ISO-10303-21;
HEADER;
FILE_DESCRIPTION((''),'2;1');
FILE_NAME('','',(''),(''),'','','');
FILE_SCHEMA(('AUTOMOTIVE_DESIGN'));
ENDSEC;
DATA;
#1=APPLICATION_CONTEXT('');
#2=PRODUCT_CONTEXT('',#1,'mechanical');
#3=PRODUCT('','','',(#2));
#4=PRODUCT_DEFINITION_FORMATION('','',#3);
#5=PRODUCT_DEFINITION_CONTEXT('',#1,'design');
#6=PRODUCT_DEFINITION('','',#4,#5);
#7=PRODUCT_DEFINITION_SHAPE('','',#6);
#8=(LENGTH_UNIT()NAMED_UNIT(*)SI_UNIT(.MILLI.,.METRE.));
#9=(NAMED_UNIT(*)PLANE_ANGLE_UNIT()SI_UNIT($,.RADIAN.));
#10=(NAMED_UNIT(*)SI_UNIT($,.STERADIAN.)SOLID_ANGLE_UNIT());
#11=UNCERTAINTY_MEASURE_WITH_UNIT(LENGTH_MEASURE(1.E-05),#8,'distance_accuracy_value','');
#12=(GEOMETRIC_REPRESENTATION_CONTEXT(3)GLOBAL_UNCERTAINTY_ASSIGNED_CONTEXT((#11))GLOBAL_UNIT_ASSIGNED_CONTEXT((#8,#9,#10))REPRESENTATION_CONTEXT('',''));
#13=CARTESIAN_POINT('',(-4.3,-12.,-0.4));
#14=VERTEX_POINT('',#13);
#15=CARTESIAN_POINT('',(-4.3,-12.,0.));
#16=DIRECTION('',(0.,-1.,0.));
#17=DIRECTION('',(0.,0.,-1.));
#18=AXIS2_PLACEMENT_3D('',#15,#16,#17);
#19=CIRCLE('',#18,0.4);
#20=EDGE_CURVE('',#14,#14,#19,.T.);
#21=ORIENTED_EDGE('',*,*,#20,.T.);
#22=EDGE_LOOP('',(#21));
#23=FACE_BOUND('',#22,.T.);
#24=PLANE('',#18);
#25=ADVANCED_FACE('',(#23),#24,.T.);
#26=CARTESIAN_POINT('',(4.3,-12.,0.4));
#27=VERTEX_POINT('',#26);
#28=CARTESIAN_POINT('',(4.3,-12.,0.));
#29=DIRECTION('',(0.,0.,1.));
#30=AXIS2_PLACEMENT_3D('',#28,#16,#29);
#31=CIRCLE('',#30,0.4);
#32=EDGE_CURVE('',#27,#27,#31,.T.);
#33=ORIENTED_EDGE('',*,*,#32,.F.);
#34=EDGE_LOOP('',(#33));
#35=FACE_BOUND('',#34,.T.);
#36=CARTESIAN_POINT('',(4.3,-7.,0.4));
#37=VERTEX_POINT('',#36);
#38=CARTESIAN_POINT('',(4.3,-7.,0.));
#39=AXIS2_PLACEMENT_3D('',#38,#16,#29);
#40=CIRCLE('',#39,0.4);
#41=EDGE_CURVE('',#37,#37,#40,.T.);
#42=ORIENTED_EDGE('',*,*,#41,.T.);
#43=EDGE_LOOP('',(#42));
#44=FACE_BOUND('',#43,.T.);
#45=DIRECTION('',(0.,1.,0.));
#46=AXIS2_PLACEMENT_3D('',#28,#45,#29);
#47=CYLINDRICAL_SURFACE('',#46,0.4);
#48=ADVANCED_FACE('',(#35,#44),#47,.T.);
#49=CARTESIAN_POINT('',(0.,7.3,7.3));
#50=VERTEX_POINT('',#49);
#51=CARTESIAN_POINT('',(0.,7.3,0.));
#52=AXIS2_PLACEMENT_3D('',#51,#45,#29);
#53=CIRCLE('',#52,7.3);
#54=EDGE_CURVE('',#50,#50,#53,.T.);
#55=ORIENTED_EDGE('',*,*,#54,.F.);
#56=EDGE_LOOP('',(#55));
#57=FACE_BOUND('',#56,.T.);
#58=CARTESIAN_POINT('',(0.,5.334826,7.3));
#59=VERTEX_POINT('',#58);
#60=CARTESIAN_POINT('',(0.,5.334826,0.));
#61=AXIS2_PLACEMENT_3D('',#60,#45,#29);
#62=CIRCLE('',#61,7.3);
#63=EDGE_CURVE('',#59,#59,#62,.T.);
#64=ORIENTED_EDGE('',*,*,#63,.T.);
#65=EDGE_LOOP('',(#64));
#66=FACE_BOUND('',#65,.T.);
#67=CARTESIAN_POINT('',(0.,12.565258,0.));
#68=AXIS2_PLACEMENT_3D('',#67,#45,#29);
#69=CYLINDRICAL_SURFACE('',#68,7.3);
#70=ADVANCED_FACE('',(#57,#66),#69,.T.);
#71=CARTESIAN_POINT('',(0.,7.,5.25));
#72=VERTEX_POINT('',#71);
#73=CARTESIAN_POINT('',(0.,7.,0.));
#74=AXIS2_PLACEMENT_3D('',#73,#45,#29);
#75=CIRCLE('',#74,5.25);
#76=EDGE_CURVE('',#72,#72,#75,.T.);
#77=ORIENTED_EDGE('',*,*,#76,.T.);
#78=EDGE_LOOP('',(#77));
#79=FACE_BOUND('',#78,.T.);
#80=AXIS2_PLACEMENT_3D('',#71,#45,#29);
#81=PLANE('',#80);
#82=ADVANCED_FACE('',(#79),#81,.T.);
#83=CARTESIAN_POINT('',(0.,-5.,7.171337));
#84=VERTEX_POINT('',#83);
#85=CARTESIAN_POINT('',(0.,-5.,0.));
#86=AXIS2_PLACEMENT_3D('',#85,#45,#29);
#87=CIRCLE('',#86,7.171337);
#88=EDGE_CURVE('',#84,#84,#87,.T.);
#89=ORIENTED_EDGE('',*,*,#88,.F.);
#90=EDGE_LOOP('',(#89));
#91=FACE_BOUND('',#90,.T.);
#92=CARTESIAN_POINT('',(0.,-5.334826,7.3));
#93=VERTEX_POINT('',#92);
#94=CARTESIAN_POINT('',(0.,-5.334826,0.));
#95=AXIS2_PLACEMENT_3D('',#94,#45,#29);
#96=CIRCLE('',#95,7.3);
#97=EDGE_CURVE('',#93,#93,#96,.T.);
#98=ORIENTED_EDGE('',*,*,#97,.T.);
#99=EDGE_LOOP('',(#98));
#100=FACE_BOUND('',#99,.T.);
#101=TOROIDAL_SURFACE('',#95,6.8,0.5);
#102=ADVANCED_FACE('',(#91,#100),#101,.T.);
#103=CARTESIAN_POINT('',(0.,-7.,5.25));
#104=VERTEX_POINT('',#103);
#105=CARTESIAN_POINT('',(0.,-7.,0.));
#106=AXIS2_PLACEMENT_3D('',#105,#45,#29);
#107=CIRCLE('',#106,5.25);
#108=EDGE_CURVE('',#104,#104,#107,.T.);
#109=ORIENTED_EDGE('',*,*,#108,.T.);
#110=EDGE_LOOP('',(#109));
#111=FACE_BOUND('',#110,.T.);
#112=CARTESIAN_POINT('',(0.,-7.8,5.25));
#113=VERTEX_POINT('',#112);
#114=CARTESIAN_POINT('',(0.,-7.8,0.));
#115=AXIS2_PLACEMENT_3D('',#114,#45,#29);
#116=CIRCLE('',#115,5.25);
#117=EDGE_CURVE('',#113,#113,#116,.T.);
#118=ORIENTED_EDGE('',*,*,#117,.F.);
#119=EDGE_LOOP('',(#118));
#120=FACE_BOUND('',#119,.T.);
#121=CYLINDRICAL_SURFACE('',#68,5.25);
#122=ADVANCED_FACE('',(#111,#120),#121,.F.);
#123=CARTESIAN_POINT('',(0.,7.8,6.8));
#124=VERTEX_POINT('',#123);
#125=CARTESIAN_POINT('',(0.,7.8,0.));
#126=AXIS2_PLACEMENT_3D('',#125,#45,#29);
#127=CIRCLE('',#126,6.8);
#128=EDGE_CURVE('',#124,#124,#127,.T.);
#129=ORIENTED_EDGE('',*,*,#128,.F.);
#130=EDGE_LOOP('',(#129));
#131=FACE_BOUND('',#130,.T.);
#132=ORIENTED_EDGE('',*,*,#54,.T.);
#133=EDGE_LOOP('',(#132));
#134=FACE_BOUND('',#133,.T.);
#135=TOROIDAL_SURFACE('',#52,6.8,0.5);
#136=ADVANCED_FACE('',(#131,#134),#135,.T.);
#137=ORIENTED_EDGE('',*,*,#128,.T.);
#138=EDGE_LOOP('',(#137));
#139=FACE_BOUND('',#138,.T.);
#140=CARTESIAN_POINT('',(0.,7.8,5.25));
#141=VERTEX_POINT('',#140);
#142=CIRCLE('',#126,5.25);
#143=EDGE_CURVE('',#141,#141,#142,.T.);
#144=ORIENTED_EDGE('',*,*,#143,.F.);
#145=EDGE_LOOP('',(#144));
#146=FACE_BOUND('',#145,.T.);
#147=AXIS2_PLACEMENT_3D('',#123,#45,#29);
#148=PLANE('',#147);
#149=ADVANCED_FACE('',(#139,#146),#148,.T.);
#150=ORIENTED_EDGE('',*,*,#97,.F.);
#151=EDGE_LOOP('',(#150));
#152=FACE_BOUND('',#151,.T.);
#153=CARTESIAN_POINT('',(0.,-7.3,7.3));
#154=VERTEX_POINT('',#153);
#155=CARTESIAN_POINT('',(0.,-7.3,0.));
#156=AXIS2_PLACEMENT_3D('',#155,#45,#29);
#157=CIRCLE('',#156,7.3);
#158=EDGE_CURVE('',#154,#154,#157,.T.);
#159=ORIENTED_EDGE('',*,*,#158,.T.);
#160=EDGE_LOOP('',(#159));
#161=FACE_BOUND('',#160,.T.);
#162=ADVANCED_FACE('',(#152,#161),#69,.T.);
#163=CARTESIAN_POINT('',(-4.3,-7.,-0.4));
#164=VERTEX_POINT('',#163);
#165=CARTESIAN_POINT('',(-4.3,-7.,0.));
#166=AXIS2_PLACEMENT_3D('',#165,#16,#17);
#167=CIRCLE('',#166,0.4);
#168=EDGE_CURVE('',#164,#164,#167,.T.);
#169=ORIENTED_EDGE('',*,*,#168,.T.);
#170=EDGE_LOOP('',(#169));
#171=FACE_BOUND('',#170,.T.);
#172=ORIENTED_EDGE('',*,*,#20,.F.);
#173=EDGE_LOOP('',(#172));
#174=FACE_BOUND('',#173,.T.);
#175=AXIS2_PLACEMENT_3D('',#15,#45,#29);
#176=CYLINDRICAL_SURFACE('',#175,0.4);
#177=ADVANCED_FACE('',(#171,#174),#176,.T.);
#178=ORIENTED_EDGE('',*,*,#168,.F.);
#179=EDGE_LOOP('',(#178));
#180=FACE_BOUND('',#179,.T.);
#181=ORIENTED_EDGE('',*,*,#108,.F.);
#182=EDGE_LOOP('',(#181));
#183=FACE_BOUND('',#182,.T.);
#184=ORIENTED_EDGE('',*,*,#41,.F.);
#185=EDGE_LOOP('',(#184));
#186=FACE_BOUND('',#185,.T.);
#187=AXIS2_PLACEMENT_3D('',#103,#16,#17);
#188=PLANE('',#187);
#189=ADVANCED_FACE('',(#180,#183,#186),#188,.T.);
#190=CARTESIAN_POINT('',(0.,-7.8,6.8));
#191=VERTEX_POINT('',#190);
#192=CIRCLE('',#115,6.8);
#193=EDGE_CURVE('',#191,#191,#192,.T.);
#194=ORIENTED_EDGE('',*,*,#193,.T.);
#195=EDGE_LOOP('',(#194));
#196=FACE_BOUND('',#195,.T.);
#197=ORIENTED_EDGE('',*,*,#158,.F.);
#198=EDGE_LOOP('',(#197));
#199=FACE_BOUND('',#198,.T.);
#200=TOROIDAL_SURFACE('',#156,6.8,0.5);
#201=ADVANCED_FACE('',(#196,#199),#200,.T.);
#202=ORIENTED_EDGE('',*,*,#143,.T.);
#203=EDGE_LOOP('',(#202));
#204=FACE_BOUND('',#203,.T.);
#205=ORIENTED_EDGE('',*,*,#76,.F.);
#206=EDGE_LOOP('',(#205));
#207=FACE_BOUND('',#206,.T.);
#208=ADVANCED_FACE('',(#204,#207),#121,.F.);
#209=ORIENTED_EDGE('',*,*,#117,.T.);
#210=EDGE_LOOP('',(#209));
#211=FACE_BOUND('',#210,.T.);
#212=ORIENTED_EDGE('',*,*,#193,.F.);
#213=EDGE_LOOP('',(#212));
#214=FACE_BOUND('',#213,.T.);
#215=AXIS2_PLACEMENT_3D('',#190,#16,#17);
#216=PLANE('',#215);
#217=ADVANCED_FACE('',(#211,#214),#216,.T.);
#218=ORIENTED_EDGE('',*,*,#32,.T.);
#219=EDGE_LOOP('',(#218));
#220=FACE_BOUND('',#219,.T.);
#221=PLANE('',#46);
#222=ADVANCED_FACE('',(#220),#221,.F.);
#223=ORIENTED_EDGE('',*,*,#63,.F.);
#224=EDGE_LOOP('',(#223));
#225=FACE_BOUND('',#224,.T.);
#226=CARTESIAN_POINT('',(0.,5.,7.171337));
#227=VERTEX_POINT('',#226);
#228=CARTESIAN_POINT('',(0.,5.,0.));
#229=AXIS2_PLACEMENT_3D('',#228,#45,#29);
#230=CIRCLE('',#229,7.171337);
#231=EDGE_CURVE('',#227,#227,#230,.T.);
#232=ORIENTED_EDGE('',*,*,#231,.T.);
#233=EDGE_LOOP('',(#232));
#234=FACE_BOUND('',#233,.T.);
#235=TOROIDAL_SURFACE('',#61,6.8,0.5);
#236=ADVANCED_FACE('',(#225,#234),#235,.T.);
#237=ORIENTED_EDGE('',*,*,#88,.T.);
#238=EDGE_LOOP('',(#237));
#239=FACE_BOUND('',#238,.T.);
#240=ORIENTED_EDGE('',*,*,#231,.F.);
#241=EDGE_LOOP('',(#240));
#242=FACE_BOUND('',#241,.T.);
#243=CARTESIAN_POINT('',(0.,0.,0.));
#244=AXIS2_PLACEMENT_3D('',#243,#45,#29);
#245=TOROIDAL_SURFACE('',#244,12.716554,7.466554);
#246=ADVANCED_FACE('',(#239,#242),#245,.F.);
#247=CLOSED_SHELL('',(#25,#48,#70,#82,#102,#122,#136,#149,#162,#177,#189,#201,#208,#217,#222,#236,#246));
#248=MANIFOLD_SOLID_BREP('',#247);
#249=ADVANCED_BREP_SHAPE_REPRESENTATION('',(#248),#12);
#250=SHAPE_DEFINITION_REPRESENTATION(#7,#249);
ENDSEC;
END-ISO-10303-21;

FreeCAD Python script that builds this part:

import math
import FreeCAD as App
import Part
import Sketcher

V = App.Vector
Q = App.Units.Quantity

doc = App.newDocument("Part")
body = doc.addObject("PartDesign::Body", "Body")

# Sketch on YZ plane
sketch1 = body.newObject("Sketcher::SketchObject", "Sketch")
sketch1.AttachmentSupport = (doc.getObject("YZ_Plane"), [""])
sketch1.MapMode = "FlatFace"
sketch1.addGeometry(Part.LineSegment(V(7.3, 7.3, 0), V(5.33, 7.3, 0)), False)
sketch1.addGeometry(Part.ArcOfCircle(Part.Circle(V(5.33, 6.8, 0), V(0, 0, 1), 0.5), math.radians(90), math.radians(132)), False)
sketch1.addGeometry(Part.ArcOfCircle(Part.Circle(V(0, 12.72, 0), V(0, 0, 1), 7.47), math.radians(-132), math.radians(-48)), False)
sketch1.addGeometry(Part.ArcOfCircle(Part.Circle(V(-5.33, 6.8, 0), V(0, 0, 1), 0.5), math.radians(48), math.radians(90)), False)
sketch1.addGeometry(Part.LineSegment(V(-5.33, 7.3, 0), V(-7.3, 7.3, 0)), False)
sketch1.addGeometry(Part.ArcOfCircle(Part.Circle(V(-7.3, 6.8, 0), V(0, 0, 1), 0.5), math.radians(90), math.radians(180)), False)
sketch1.addGeometry(Part.LineSegment(V(-7.8, 6.8, 0), V(-7.8, 5.25, 0)), False)
sketch1.addGeometry(Part.LineSegment(V(-7.8, 5.25, 0), V(-7, 5.25, 0)), False)
sketch1.addGeometry(Part.LineSegment(V(-7, 5.25, 0), V(-7, 0, 0)), False)
sketch1.addGeometry(Part.LineSegment(V(-7, 0, 0), V(7, 0, 0)), False)
sketch1.addGeometry(Part.LineSegment(V(7, 0, 0), V(7, 5.25, 0)), False)
sketch1.addGeometry(Part.LineSegment(V(7, 5.25, 0), V(7.8, 5.25, 0)), False)
sketch1.addGeometry(Part.LineSegment(V(7.8, 5.25, 0), V(7.8, 6.8, 0)), False)
sketch1.addGeometry(Part.ArcOfCircle(Part.Circle(V(7.3, 6.8, 0), V(0, 0, 1), 0.5), math.radians(0), math.radians(90)), False)
sketch1.addConstraint(Sketcher.Constraint("Tangent", 0, 2, 1, 1))
sketch1.addConstraint(Sketcher.Constraint("Tangent", 1, 2, 2, 2))
sketch1.addConstraint(Sketcher.Constraint("Tangent", 2, 1, 3, 1))
sketch1.addConstraint(Sketcher.Constraint("Tangent", 3, 2, 4, 1))
sketch1.addConstraint(Sketcher.Constraint("Tangent", 4, 2, 5, 1))
sketch1.addConstraint(Sketcher.Constraint("Tangent", 5, 2, 6, 1))
sketch1.addConstraint(Sketcher.Constraint("Coincident", 6, 2, 7, 1))
sketch1.addConstraint(Sketcher.Constraint("Coincident", 7, 2, 8, 1))
sketch1.addConstraint(Sketcher.Constraint("Coincident", 8, 2, 9, 1))
sketch1.addConstraint(Sketcher.Constraint("Coincident", 9, 2, 10, 1))
sketch1.addConstraint(Sketcher.Constraint("Coincident", 10, 2, 11, 1))
sketch1.addConstraint(Sketcher.Constraint("Coincident", 11, 2, 12, 1))
sketch1.addConstraint(Sketcher.Constraint("Tangent", 12, 2, 13, 1))
sketch1.addConstraint(Sketcher.Constraint("Tangent", 13, 2, 0, 1))
sketch1.addConstraint(Sketcher.Constraint("Horizontal", 0))
sketch1.addConstraint(Sketcher.Constraint("Horizontal", 4))
sketch1.addConstraint(Sketcher.Constraint("Vertical", 6))
sketch1.addConstraint(Sketcher.Constraint("Horizontal", 7))
sketch1.addConstraint(Sketcher.Constraint("Vertical", 8))
sketch1.addConstraint(Sketcher.Constraint("Horizontal", 9))
sketch1.addConstraint(Sketcher.Constraint("Vertical", 10))
sketch1.addConstraint(Sketcher.Constraint("Horizontal", 11))
sketch1.addConstraint(Sketcher.Constraint("Vertical", 12))
sketch1.addConstraint(Sketcher.Constraint("Equal", 1, 3))
sketch1.addConstraint(Sketcher.Constraint("Equal", 3, 5))
sketch1.addConstraint(Sketcher.Constraint("Equal", 5, 13))
sketch1.addConstraint(Sketcher.Constraint("Symmetric", 8, 2, 9, 2, -1, 1))
sketch1.addConstraint(Sketcher.Constraint("Symmetric", 1, 3, 3, 3, -2))
sketch1.addConstraint(Sketcher.Constraint("Symmetric", 6, 2, 11, 2, -2))
sketch1.addConstraint(Sketcher.Constraint("Radius", 1, Q("0.5 mm")))
sketch1.addConstraint(Sketcher.Constraint("DistanceX", 9, 1, 9, 2, Q("14 mm")))
sketch1.addConstraint(Sketcher.Constraint("DistanceX", 7, 1, 7, 2, Q("0.8 mm")))
sketch1.addConstraint(Sketcher.Constraint("DistanceX", -1, 1, 1, 2, Q("5 mm")))
sketch1.addConstraint(Sketcher.Constraint("DistanceY", 6, 2, 6, 1, Q("1.55 mm")))
sketch1.addConstraint(Sketcher.Constraint("DistanceY", 8, 2, 8, 1, Q("5.25 mm")))
sketch1.addConstraint(Sketcher.Constraint("Radius", 2, Q("7.466554 mm")))
revolution = body.newObject("PartDesign::Revolution", "Revolution")
revolution.Profile = sketch1
revolution.ReferenceAxis = (sketch1, ["H_Axis"])
revolution.Angle = 360

# Sketch on XZ plane
sketch2 = body.newObject("Sketcher::SketchObject", "Sketch001")
sketch2.AttachmentSupport = (doc.getObject("XZ_Plane"), [""])
sketch2.MapMode = "FlatFace"
sketch2.AttachmentOffset = App.Placement(V(0, 0, 7), App.Rotation())
sketch2.addGeometry(Part.Circle(V(-4.3, 0, 0), V(0, 0, 1), 0.4), False)
sketch2.addGeometry(Part.Circle(V(4.3, 0, 0), V(0, 0, 1), 0.4), False)
sketch2.addConstraint(Sketcher.Constraint("Equal", 0, 1))
sketch2.addConstraint(Sketcher.Constraint("Symmetric", 0, 3, 1, 3, -1, 1))
sketch2.addConstraint(Sketcher.Constraint("PointOnObject", 0, 3, -1))
sketch2.addConstraint(Sketcher.Constraint("Diameter", 0, Q("0.8 mm")))
sketch2.addConstraint(Sketcher.Constraint("DistanceX", 0, 3, -1, 1, Q("4.3 mm")))
pad1 = body.newObject("PartDesign::Pad", "Pad")
pad1.Profile = sketch2
pad1.Length = 5

doc.recompute()
